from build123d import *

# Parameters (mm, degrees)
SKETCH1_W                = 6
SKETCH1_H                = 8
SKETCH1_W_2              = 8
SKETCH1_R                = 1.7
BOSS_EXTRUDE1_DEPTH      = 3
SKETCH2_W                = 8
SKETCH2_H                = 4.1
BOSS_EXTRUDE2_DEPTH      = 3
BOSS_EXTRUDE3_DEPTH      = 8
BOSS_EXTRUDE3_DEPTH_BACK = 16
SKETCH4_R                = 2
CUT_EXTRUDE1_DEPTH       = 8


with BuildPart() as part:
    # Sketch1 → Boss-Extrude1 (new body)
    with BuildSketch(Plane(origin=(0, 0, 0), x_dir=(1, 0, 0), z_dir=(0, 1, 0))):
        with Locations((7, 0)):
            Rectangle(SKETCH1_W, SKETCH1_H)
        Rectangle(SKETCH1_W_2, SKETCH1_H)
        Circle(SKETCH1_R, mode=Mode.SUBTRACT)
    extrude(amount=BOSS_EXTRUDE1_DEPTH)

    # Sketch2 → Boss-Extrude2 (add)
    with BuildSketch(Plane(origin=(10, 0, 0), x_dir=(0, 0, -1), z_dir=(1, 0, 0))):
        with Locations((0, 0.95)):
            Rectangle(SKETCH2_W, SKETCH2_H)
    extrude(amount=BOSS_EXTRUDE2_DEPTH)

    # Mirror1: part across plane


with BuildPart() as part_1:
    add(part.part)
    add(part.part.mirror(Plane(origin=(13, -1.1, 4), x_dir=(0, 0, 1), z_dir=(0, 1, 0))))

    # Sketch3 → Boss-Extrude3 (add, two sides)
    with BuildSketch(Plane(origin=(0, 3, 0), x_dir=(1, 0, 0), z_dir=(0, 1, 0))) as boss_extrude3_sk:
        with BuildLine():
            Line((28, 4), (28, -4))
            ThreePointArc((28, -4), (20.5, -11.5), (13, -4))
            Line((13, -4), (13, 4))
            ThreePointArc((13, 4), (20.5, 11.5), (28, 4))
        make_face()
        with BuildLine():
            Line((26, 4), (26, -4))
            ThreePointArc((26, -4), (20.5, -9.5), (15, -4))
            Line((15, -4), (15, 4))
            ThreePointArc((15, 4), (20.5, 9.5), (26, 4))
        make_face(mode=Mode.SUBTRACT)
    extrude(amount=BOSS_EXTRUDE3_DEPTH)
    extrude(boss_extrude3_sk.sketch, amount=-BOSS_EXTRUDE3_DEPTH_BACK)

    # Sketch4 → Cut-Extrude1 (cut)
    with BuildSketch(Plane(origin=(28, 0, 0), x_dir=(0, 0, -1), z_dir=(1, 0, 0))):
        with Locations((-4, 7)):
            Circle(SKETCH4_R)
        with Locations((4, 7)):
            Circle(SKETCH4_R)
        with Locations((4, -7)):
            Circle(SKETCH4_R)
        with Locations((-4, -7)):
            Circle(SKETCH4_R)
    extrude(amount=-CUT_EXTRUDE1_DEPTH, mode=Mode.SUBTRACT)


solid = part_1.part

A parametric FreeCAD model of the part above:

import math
import FreeCAD as App
import Part
import Sketcher
from FreeCAD import Vector
Q = App.Units.Quantity

doc = App.newDocument("Part")
body = doc.addObject("PartDesign::Body", "Body")

# Sketch on XZ plane
sketch1 = body.newObject("Sketcher::SketchObject", "Sketch")
sketch1.AttachmentSupport = (doc.getObject("XZ_Plane"), [""])
sketch1.MapMode = "FlatFace"
sketch1.addGeometry(Part.LineSegment(Vector(10, 4, 0), Vector(10, -4, 0)), False)
sketch1.addGeometry(Part.LineSegment(Vector(10, -4, 0), Vector(-4, -4, 0)), False)
sketch1.addGeometry(Part.LineSegment(Vector(-4, -4, 0), Vector(-4, 4, 0)), False)
sketch1.addGeometry(Part.LineSegment(Vector(-4, 4, 0), Vector(10, 4, 0)), False)
sketch1.addGeometry(Part.Circle(Vector(0, 0, 0), Vector(0, 0, 1), 1.7), False)
sketch1.addConstraint(Sketcher.Constraint("Coincident", 0, 2, 1, 1))
sketch1.addConstraint(Sketcher.Constraint("Coincident", 1, 2, 2, 1))
sketch1.addConstraint(Sketcher.Constraint("Coincident", 2, 2, 3, 1))
sketch1.addConstraint(Sketcher.Constraint("Coincident", 3, 2, 0, 1))
sketch1.addConstraint(Sketcher.Constraint("Vertical", 0))
sketch1.addConstraint(Sketcher.Constraint("Horizontal", 1))
sketch1.addConstraint(Sketcher.Constraint("Vertical", 2))
sketch1.addConstraint(Sketcher.Constraint("Horizontal", 3))
sketch1.addConstraint(Sketcher.Constraint("Coincident", 4, 3, -1, 1))
sketch1.addConstraint(Sketcher.Constraint("Diameter", 4, Q("3.4 mm")))
sketch1.addConstraint(Sketcher.Constraint("DistanceX", 1, 2, 1, 1, Q("14 mm")))
sketch1.addConstraint(Sketcher.Constraint("DistanceY", 0, 2, 0, 1, Q("8 mm")))
sketch1.addConstraint(Sketcher.Constraint("DistanceX", -1, 1, 0, 2, Q("10 mm")))
sketch1.addConstraint(Sketcher.Constraint("DistanceY", 0, 2, -1, 1, Q("4 mm")))
pad1 = body.newObject("PartDesign::Pad", "Pad")
pad1.Profile = sketch1
pad1.Length = 3
pad1.Reversed = True

# Sketch on YZ plane
sketch2 = body.newObject("Sketcher::SketchObject", "Sketch001")
sketch2.AttachmentSupport = (doc.getObject("YZ_Plane"), [""])
sketch2.MapMode = "FlatFace"
sketch2.AttachmentOffset = App.Placement(Vector(0, 0, 10), App.Rotation())
sketch2.addGeometry(Part.LineSegment(Vector(3, 4, 0), Vector(-1.1, 4, 0)), False)
sketch2.addGeometry(Part.LineSegment(Vector(-1.1, 4, 0), Vector(-1.1, -4, 0)), False)
sketch2.addGeometry(Part.LineSegment(Vector(-1.1, -4, 0), Vector(3, -4, 0)), False)
sketch2.addGeometry(Part.LineSegment(Vector(3, -4, 0), Vector(3, 4, 0)), False)
sketch2.addConstraint(Sketcher.Constraint("Coincident", 0, 2, 1, 1))
sketch2.addConstraint(Sketcher.Constraint("Coincident", 1, 2, 2, 1))
sketch2.addConstraint(Sketcher.Constraint("Coincident", 2, 2, 3, 1))
sketch2.addConstraint(Sketcher.Constraint("Coincident", 3, 2, 0, 1))
sketch2.addConstraint(Sketcher.Constraint("Horizontal", 0))
sketch2.addConstraint(Sketcher.Constraint("Vertical", 1))
sketch2.addConstraint(Sketcher.Constraint("Horizontal", 2))
sketch2.addConstraint(Sketcher.Constraint("Vertical", 3))
sketch2.addConstraint(Sketcher.Constraint("DistanceY", 1, 2, 1, 1, Q("8 mm")))
sketch2.addConstraint(Sketcher.Constraint("DistanceX", 0, 2, 0, 1, Q("4.1 mm")))
sketch2.addConstraint(Sketcher.Constraint("DistanceY", -1, 1, 0, 2, Q("4 mm")))
sketch2.addConstraint(Sketcher.Constraint("DistanceX", -1, 1, 2, 2, Q("3 mm")))
pad2 = body.newObject("PartDesign::Pad", "Pad001")
pad2.Profile = sketch2
pad2.Length = 3
body2 = doc.addObject("PartDesign::Body", "Body001")
doc.recompute()

body2.BaseFeature = body
doc.recompute()

mirroring = doc.addObject("Part::Mirroring", "Mirroring")
mirroring.Source = body
mirroring.Base = Vector(13, -1.1, 4)
mirroring.Normal = Vector(0, 1, 0)
body3 = doc.addObject("PartDesign::Body", "Body002")
body3.BaseFeature = mirroring
boolean = body2.newObject("PartDesign::Boolean", "Boolean")
boolean.Type = "Fuse"
boolean.addObjects([body3])
doc.recompute()

# Sketch on XZ plane
sketch3 = body2.newObject("Sketcher::SketchObject", "Sketch002")
sketch3.AttachmentSupport = (doc.getObject("XZ_Plane001"), [""])
sketch3.MapMode = "FlatFace"
sketch3.AttachmentOffset = App.Placement(Vector(0, 0, -3), App.Rotation())
sketch3.addGeometry(Part.LineSegment(Vector(28, 4, 0), Vector(28, -4, 0)), False)
sketch3.addGeometry(Part.ArcOfCircle(Part.Circle(Vector(20, -4, 0), Vector(0, 0, 1), 8), math.radians(180), math.radians(360)), False)
sketch3.addGeometry(Part.LineSegment(Vector(13, -4, 0), Vector(13, 4, 0)), False)
sketch3.addGeometry(Part.ArcOfCircle(Part.Circle(Vector(20, 4, 0), Vector(0, 0, 1), 8), math.radians(0), math.radians(180)), False)
sketch3.addGeometry(Part.LineSegment(Vector(26, -4, 0), Vector(26, 4, 0)), False)
sketch3.addGeometry(Part.ArcOfCircle(Part.Circle(Vector(20, 4, 0), Vector(0, 0, 1), 6), math.radians(0), math.radians(180)), False)
sketch3.addGeometry(Part.LineSegment(Vector(15, 4, 0), Vector(15, -4, 0)), False)
sketch3.addGeometry(Part.ArcOfCircle(Part.Circle(Vector(20, -4, 0), Vector(0, 0, 1), 6), math.radians(180), math.radians(360)), False)
sketch3.addConstraint(Sketcher.Constraint("Tangent", 0, 2, 1, 2))
sketch3.addConstraint(Sketcher.Constraint("Tangent", 1, 1, 2, 1))
sketch3.addConstraint(Sketcher.Constraint("Tangent", 2, 2, 3, 2))
sketch3.addConstraint(Sketcher.Constraint("Tangent", 3, 1, 0, 1))
sketch3.addConstraint(Sketcher.Constraint("Tangent", 4, 2, 5, 1))
sketch3.addConstraint(Sketcher.Constraint("Tangent", 5, 2, 6, 1))
sketch3.addConstraint(Sketcher.Constraint("Tangent", 6, 2, 7, 1))
sketch3.addConstraint(Sketcher.Constraint("Tangent", 7, 2, 4, 1))
sketch3.addConstraint(Sketcher.Constraint("Vertical", 0))
sketch3.addConstraint(Sketcher.Constraint("Vertical", 2))
sketch3.addConstraint(Sketcher.Constraint("Vertical", 4))
sketch3.addConstraint(Sketcher.Constraint("Vertical", 6))
sketch3.addConstraint(Sketcher.Constraint("Coincident", 5, 3, 3, 3))
sketch3.addConstraint(Sketcher.Constraint("Horizontal", 7, 3, 0, 2))
sketch3.addConstraint(Sketcher.Constraint("Radius", 1, Q("7.5 mm")))
sketch3.addConstraint(Sketcher.Constraint("Radius", 5, Q("5.5 mm")))
sketch3.addConstraint(Sketcher.Constraint("DistanceY", 0, 2, 0, 1, Q("8 mm")))
sketch3.addConstraint(Sketcher.Constraint("DistanceY", 1, 3, -1, 1, Q("4 mm")))
sketch3.addConstraint(Sketcher.Constraint("DistanceX", -1, 1, 0, 2, Q("28 mm")))
pad3 = body2.newObject("PartDesign::Pad", "Pad002")
pad3.Profile = sketch3
pad3.Type = "TwoLengths"
pad3.Length = 8
pad3.Length2 = 16
pad3.Reversed = True

# Sketch on YZ plane
sketch4 = body2.newObject("Sketcher::SketchObject", "Sketch003")
sketch4.AttachmentSupport = (doc.getObject("YZ_Plane001"), [""])
sketch4.MapMode = "FlatFace"
sketch4.AttachmentOffset = App.Placement(Vector(0, 0, 28), App.Rotation())
sketch4.addGeometry(Part.Circle(Vector(7, 4, 0), Vector(0, 0, 1), 2), False)
sketch4.addGeometry(Part.Circle(Vector(7, -4, 0), Vector(0, 0, 1), 2), False)
sketch4.addGeometry(Part.Circle(Vector(-7, -4, 0), Vector(0, 0, 1), 2), False)
sketch4.addGeometry(Part.Circle(Vector(-7, 4, 0), Vector(0, 0, 1), 2), False)
sketch4.addConstraint(Sketcher.Constraint("Equal", 0, 1))
sketch4.addConstraint(Sketcher.Constraint("Equal", 1, 2))
sketch4.addConstraint(Sketcher.Constraint("Equal", 2, 3))
sketch4.addConstraint(Sketcher.Constraint("Symmetric", 0, 3, 2, 3, -1, 1))
sketch4.addConstraint(Sketcher.Constraint("Symmetric", 1, 3, 3, 3, -1, 1))
sketch4.addConstraint(Sketcher.Constraint("Symmetric", 1, 3, 2, 3, -2))
sketch4.addConstraint(Sketcher.Constraint("Diameter", 0, Q("4 mm")))
sketch4.addConstraint(Sketcher.Constraint("DistanceX", -1, 1, 0, 3, Q("7 mm")))
sketch4.addConstraint(Sketcher.Constraint("DistanceY", -1, 1, 0, 3, Q("4 mm")))
pocket1 = body2.newObject("PartDesign::Pocket", "Pocket")
pocket1.Profile = sketch4
pocket1.Length = 8
mirroring.Visibility = False

doc.recompute()
